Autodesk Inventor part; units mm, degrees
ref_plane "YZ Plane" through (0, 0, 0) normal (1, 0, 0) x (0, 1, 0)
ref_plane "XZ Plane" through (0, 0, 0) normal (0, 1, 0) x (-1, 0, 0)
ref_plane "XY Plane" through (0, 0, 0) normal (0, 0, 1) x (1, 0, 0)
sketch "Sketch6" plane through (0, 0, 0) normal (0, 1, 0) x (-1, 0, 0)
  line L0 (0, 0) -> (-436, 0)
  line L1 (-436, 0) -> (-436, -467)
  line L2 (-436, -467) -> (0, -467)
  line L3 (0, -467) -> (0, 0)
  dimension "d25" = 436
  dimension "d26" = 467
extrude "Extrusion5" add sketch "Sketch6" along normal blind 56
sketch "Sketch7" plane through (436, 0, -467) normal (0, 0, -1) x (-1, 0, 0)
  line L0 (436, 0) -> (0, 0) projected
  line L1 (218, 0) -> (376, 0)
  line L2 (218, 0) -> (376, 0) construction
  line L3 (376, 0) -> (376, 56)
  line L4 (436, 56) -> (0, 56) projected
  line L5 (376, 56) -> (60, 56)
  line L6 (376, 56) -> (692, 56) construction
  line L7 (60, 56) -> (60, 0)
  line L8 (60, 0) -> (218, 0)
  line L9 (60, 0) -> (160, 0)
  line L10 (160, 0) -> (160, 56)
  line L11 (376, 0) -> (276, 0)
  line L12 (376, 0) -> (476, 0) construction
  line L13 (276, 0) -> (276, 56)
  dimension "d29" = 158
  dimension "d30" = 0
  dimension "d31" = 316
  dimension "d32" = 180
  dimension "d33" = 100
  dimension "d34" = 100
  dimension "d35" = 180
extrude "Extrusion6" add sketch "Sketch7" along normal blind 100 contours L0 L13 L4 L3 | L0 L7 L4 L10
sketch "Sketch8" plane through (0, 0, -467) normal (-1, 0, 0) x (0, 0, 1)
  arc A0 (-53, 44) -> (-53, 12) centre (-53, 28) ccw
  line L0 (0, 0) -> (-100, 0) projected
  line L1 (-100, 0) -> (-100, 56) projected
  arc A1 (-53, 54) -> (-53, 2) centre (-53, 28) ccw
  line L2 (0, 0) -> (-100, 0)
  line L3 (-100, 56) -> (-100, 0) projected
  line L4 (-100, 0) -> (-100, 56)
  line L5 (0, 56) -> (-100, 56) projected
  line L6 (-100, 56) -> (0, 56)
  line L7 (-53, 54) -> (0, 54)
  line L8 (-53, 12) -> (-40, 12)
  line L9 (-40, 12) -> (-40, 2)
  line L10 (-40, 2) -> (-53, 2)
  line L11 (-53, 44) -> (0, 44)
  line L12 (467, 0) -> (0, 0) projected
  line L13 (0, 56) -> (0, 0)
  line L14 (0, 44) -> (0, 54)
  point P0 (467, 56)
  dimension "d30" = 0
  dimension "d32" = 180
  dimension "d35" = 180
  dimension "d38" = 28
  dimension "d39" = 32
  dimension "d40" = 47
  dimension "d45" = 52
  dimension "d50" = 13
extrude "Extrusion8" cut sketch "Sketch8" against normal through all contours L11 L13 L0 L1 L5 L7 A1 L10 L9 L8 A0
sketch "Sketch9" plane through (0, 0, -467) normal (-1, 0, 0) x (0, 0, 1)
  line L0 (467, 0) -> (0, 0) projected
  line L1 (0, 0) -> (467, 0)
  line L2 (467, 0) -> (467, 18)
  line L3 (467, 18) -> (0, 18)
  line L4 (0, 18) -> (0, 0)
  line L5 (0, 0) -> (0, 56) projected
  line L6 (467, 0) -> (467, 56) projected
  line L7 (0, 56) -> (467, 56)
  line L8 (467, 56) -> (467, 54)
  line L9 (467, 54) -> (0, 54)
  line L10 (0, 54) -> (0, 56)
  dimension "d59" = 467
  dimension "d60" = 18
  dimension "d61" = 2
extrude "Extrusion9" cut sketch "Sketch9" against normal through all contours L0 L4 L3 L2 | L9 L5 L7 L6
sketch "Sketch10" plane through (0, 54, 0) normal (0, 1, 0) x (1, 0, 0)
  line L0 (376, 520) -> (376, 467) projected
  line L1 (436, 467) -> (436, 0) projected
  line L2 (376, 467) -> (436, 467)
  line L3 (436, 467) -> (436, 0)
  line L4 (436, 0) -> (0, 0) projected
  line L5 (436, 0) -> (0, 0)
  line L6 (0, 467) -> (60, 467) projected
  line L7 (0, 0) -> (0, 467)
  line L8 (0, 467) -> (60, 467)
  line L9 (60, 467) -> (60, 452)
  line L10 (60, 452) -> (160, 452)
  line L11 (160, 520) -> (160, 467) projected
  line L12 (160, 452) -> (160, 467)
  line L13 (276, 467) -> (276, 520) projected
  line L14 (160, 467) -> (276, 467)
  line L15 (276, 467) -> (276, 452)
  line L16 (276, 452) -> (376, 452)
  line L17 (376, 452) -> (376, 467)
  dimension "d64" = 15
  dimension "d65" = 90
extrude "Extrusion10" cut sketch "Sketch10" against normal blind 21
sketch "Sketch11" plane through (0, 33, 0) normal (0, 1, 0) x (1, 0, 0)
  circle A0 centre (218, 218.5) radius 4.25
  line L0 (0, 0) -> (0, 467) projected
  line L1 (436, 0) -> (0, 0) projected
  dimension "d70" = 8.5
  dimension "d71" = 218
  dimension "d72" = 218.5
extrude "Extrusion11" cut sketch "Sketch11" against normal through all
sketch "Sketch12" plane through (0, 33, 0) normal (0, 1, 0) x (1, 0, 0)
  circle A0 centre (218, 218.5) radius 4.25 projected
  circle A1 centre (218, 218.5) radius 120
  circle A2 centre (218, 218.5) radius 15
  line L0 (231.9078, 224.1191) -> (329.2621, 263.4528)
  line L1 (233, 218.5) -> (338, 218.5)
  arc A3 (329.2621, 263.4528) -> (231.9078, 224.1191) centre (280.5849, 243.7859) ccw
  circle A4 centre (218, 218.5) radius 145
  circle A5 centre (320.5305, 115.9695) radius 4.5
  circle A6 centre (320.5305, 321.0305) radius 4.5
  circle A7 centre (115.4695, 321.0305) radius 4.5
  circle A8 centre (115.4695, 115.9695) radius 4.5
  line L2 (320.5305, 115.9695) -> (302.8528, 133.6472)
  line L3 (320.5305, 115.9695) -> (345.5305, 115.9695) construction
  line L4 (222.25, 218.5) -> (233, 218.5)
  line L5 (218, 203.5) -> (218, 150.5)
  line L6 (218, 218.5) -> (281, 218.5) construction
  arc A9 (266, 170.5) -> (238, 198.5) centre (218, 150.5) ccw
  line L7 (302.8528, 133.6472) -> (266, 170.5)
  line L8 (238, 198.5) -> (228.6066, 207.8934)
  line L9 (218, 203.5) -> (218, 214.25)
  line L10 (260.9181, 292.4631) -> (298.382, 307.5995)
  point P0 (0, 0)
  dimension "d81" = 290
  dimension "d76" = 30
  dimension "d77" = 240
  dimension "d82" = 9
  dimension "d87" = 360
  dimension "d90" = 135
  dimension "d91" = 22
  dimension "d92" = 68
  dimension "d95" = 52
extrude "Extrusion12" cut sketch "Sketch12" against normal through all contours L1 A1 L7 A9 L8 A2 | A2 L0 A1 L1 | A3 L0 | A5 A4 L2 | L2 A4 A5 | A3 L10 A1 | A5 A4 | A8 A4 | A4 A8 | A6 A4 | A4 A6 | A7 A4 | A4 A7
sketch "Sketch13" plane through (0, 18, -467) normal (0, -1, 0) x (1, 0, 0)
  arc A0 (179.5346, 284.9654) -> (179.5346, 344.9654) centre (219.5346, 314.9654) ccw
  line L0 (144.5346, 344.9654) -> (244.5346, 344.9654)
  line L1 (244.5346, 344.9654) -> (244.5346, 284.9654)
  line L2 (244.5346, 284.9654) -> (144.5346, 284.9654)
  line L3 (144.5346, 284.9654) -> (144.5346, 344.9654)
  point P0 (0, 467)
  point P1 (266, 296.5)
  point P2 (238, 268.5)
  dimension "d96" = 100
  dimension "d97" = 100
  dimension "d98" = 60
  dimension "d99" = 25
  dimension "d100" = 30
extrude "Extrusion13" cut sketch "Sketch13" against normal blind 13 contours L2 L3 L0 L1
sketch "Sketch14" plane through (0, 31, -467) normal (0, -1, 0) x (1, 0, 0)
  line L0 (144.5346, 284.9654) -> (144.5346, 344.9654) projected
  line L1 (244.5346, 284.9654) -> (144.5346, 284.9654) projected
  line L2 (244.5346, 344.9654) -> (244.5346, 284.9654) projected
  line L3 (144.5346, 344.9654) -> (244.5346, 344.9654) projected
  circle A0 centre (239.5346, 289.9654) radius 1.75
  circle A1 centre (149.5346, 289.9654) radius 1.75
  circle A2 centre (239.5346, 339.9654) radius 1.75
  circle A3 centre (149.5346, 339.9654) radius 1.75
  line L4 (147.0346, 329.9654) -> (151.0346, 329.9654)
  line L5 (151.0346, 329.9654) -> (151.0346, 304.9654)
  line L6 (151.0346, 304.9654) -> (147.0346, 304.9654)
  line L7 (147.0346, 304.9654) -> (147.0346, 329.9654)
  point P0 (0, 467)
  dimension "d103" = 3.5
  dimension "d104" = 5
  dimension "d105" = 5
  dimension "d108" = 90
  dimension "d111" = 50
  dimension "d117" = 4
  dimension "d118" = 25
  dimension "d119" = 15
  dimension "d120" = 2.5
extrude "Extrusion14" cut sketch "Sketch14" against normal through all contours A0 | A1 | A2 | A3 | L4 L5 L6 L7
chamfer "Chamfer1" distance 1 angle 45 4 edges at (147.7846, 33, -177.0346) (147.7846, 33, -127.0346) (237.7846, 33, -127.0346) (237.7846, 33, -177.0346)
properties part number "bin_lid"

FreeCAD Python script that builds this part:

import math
import FreeCAD as App
import Part
import Sketcher
from FreeCAD import Vector
Q = App.Units.Quantity


def edges_at(feature, points):
    """Names of the edges that pass closest to the given points."""
    edges = feature.Shape.Edges
    near = lambda p: min(range(len(edges)), key=lambda i: edges[i].distToShape(Part.Vertex(*p))[0])
    return sorted({f"Edge{near(p) + 1}" for p in points})


def add_polygon(sketch, points):
    """Adds a closed chain of lines whose ends are joined by coincident constraints."""
    first, n = sketch.GeometryCount, len(points)
    for a, b in zip(points, points[1:] + points[:1]):
        sketch.addGeometry(Part.LineSegment(App.Vector(*a, 0), App.Vector(*b, 0)), False)
    for i in range(n):
        sketch.addConstraint(Sketcher.Constraint("Coincident", first + i, 2, first + (i + 1) % n, 1))

doc = App.newDocument("Part")
body = doc.addObject("PartDesign::Body", "Body")

sketch1 = body.newObject("Sketcher::SketchObject", "Sketch")
sketch1.AttachmentSupport = (doc.getObject("XZ_Plane"), [""])
sketch1.MapMode = "FlatFace"
add_polygon(sketch1, [(0, -467), (0, 0), (436, 0), (436, -467)])
sketch1.addConstraint(Sketcher.Constraint("Vertical", 0))
sketch1.addConstraint(Sketcher.Constraint("Horizontal", 1))
sketch1.addConstraint(Sketcher.Constraint("Vertical", 2))
sketch1.addConstraint(Sketcher.Constraint("Horizontal", 3))
sketch1.addConstraint(Sketcher.Constraint("Coincident", 0, 2, -1, 1))
sketch1.addConstraint(Sketcher.Constraint("DistanceX", 1, 1, 1, 2, Q("436 mm")))
sketch1.addConstraint(Sketcher.Constraint("DistanceY", 0, 1, 0, 2, Q("467 mm")))
pad1 = body.newObject("PartDesign::Pad", "Pad")
pad1.Profile = sketch1
pad1.Length = 56
pad1.Reversed = True

sketch2 = body.newObject("Sketcher::SketchObject", "Sketch001")
sketch2.AttachmentSupport = (doc.getObject("XY_Plane"), [""])
sketch2.MapMode = "FlatFace"
sketch2.AttachmentOffset = App.Placement(Vector(0, 0, -467), App.Rotation())
add_polygon(sketch2, [(160, 0), (60, 0), (60, 56), (160, 56)])
add_polygon(sketch2, [(376, 0), (276, 0), (276, 56), (376, 56)])
sketch2.addConstraint(Sketcher.Constraint("Horizontal", 0))
sketch2.addConstraint(Sketcher.Constraint("Vertical", 1))
sketch2.addConstraint(Sketcher.Constraint("Horizontal", 2))
sketch2.addConstraint(Sketcher.Constraint("Vertical", 3))
sketch2.addConstraint(Sketcher.Constraint("Horizontal", 4))
sketch2.addConstraint(Sketcher.Constraint("Vertical", 5))
sketch2.addConstraint(Sketcher.Constraint("Horizontal", 6))
sketch2.addConstraint(Sketcher.Constraint("Vertical", 7))
sketch2.addConstraint(Sketcher.Constraint("PointOnObject", 0, 2, -1))
sketch2.addConstraint(Sketcher.Constraint("PointOnObject", 4, 2, -1))
sketch2.addConstraint(Sketcher.Constraint("Horizontal", 2, 2, 5, 2))
sketch2.addConstraint(Sketcher.Constraint("Equal", 2, 4))
sketch2.addConstraint(Sketcher.Constraint("DistanceX", 0, 2, 0, 1, Q("100 mm")))
sketch2.addConstraint(Sketcher.Constraint("DistanceX", 1, 2, 6, 2, Q("316 mm")))
sketch2.addConstraint(Sketcher.Constraint("DistanceY", 1, 1, 1, 2, Q("56 mm")))
sketch2.addConstraint(Sketcher.Constraint("DistanceX", -1, 1, 0, 2, Q("60 mm")))
pad2 = body.newObject("PartDesign::Pad", "Pad001")
pad2.Profile = sketch2
pad2.Length = 100
pad2.Reversed = True

sketch3 = body.newObject("Sketcher::SketchObject", "Sketch002")
sketch3.AttachmentSupport = (doc.getObject("YZ_Plane"), [""])
sketch3.MapMode = "FlatFace"
sketch3.addGeometry(Part.LineSegment(Vector(44, -467, 0), Vector(44, -520, 0)), False)
sketch3.addGeometry(Part.ArcOfCircle(Part.Circle(Vector(28, -520, 0), Vector(0, 0, 1), 16), math.radians(180), math.radians(360)), False)
sketch3.addGeometry(Part.LineSegment(Vector(12, -520, 0), Vector(12, -507, 0)), False)
sketch3.addGeometry(Part.LineSegment(Vector(12, -507, 0), Vector(2, -507, 0)), False)
sketch3.addGeometry(Part.LineSegment(Vector(2, -507, 0), Vector(2, -520, 0)), False)
sketch3.addGeometry(Part.ArcOfCircle(Part.Circle(Vector(28, -520, 0), Vector(0, 0, 1), 26), math.radians(180), math.radians(360)), False)
sketch3.addGeometry(Part.LineSegment(Vector(54, -520, 0), Vector(54, -467, 0)), False)
sketch3.addGeometry(Part.LineSegment(Vector(54, -467, 0), Vector(56, -467, 0)), False)
sketch3.addGeometry(Part.LineSegment(Vector(56, -467, 0), Vector(56, -567, 0)), False)
sketch3.addGeometry(Part.LineSegment(Vector(56, -567, 0), Vector(0, -567, 0)), False)
sketch3.addGeometry(Part.LineSegment(Vector(0, -567, 0), Vector(0, -467, 0)), False)
sketch3.addGeometry(Part.LineSegment(Vector(0, -467, 0), Vector(44, -467, 0)), False)
sketch3.addConstraint(Sketcher.Constraint("Tangent", 0, 2, 1, 2))
sketch3.addConstraint(Sketcher.Constraint("Tangent", 1, 1, 2, 1))
sketch3.addConstraint(Sketcher.Constraint("Coincident", 2, 2, 3, 1))
sketch3.addConstraint(Sketcher.Constraint("Coincident", 3, 2, 4, 1))
sketch3.addConstraint(Sketcher.Constraint("Tangent", 4, 2, 5, 1))
sketch3.addConstraint(Sketcher.Constraint("Tangent", 5, 2, 6, 1))
sketch3.addConstraint(Sketcher.Constraint("Coincident", 6, 2, 7, 1))
sketch3.addConstraint(Sketcher.Constraint("Coincident", 7, 2, 8, 1))
sketch3.addConstraint(Sketcher.Constraint("Coincident", 8, 2, 9, 1))
sketch3.addConstraint(Sketcher.Constraint("Coincident", 9, 2, 10, 1))
sketch3.addConstraint(Sketcher.Constraint("Coincident", 10, 2, 11, 1))
sketch3.addConstraint(Sketcher.Constraint("Coincident", 11, 2, 0, 1))
sketch3.addConstraint(Sketcher.Constraint("Vertical", 0))
sketch3.addConstraint(Sketcher.Constraint("Vertical", 2))
sketch3.addConstraint(Sketcher.Constraint("Horizontal", 3))
sketch3.addConstraint(Sketcher.Constraint("Vertical", 4))
sketch3.addConstraint(Sketcher.Constraint("Vertical", 6))
sketch3.addConstraint(Sketcher.Constraint("Horizontal", 7))
sketch3.addConstraint(Sketcher.Constraint("Vertical", 8))
sketch3.addConstraint(Sketcher.Constraint("Horizontal", 9))
sketch3.addConstraint(Sketcher.Constraint("Vertical", 10))
sketch3.addConstraint(Sketcher.Constraint("Horizontal", 11))
sketch3.addConstraint(Sketcher.Constraint("Coincident", 5, 3, 1, 3))
sketch3.addConstraint(Sketcher.Constraint("PointOnObject", 9, 2, -2))
sketch3.addConstraint(Sketcher.Constraint("Horizontal", 7, 2, 10, 2))
sketch3.addConstraint(Sketcher.Constraint("Radius", 1, Q("16 mm")))
sketch3.addConstraint(Sketcher.Constraint("Radius", 5, Q("26 mm")))
sketch3.addConstraint(Sketcher.Constraint("DistanceY", 2, 1, 2, 2, Q("13 mm")))
sketch3.addConstraint(Sketcher.Constraint("DistanceX", -1, 1, 1, 3, Q("28 mm")))
sketch3.addConstraint(Sketcher.Constraint("DistanceX", 1, 3, 7, 2, Q("28 mm")))
sketch3.addConstraint(Sketcher.Constraint("DistanceY", 8, 2, 5, 2, Q("47 mm")))
sketch3.addConstraint(Sketcher.Constraint("DistanceY", 0, 2, 0, 1, Q("53 mm")))
sketch3.addConstraint(Sketcher.Constraint("DistanceY", 1, 3, -1, 1, Q("520 mm")))
pocket1 = body.newObject("PartDesign::Pocket", "Pocket")
pocket1.Profile = sketch3
pocket1.Type = "ThroughAll"
pocket1.Reversed = True

sketch4 = body.newObject("Sketcher::SketchObject", "Sketch003")
sketch4.AttachmentSupport = (doc.getObject("YZ_Plane"), [""])
sketch4.MapMode = "FlatFace"
add_polygon(sketch4, [(0, -467), (0, 0), (18, 0), (18, -467)])
add_polygon(sketch4, [(54, -467), (54, 0), (56, 0), (56, -467)])
sketch4.addConstraint(Sketcher.Constraint("Vertical", 0))
sketch4.addConstraint(Sketcher.Constraint("Horizontal", 1))
sketch4.addConstraint(Sketcher.Constraint("Vertical", 2))
sketch4.addConstraint(Sketcher.Constraint("Horizontal", 3))
sketch4.addConstraint(Sketcher.Constraint("Vertical", 4))
sketch4.addConstraint(Sketcher.Constraint("Horizontal", 5))
sketch4.addConstraint(Sketcher.Constraint("Vertical", 6))
sketch4.addConstraint(Sketcher.Constraint("Horizontal", 7))
sketch4.addConstraint(Sketcher.Constraint("Coincident", 0, 2, -1, 1))
sketch4.addConstraint(Sketcher.Constraint("PointOnObject", 4, 2, -1))
sketch4.addConstraint(Sketcher.Constraint("Horizontal", 3, 2, 6, 2))
sketch4.addConstraint(Sketcher.Constraint("DistanceX", 1, 1, 1, 2, Q("18 mm")))
sketch4.addConstraint(Sketcher.Constraint("DistanceX", 5, 1, 5, 2, Q("2 mm")))
sketch4.addConstraint(Sketcher.Constraint("DistanceY", 0, 1, 0, 2, Q("467 mm")))
sketch4.addConstraint(Sketcher.Constraint("DistanceX", -1, 1, 4, 2, Q("54 mm")))
pocket2 = body.newObject("PartDesign::Pocket", "Pocket001")
pocket2.Profile = sketch4
pocket2.Type = "ThroughAll"
pocket2.Reversed = True

sketch5 = body.newObject("Sketcher::SketchObject", "Sketch004")
sketch5.AttachmentSupport = (doc.getObject("XZ_Plane"), [""])
sketch5.MapMode = "FlatFace"
sketch5.AttachmentOffset = App.Placement(Vector(0, 0, -54), App.Rotation())
add_polygon(sketch5, [(436, 0), (436, -467), (376, -467), (376, -452), (276, -452), (276, -467), (160, -467), (160, -452), (60, -452), (60, -467), (0, -467), (0, 0)])
sketch5.addConstraint(Sketcher.Constraint("Vertical", 0))
sketch5.addConstraint(Sketcher.Constraint("Horizontal", 1))
sketch5.addConstraint(Sketcher.Constraint("Vertical", 2))
sketch5.addConstraint(Sketcher.Constraint("Horizontal", 3))
sketch5.addConstraint(Sketcher.Constraint("Vertical", 4))
sketch5.addConstraint(Sketcher.Constraint("Horizontal", 5))
sketch5.addConstraint(Sketcher.Constraint("Vertical", 6))
sketch5.addConstraint(Sketcher.Constraint("Horizontal", 7))
sketch5.addConstraint(Sketcher.Constraint("Vertical", 8))
sketch5.addConstraint(Sketcher.Constraint("Horizontal", 9))
sketch5.addConstraint(Sketcher.Constraint("Vertical", 10))
sketch5.addConstraint(Sketcher.Constraint("Horizontal", 11))
sketch5.addConstraint(Sketcher.Constraint("Coincident", 10, 2, -1, 1))
sketch5.addConstraint(Sketcher.Constraint("Horizontal", 1, 2, 4, 2))
sketch5.addConstraint(Sketcher.Constraint("Horizontal", 3, 2, 6, 2))
sketch5.addConstraint(Sketcher.Constraint("Horizontal", 5, 2, 8, 2))
sketch5.addConstraint(Sketcher.Constraint("Equal", 3, 7))
sketch5.addConstraint(Sketcher.Constraint("Equal", 1, 9))
sketch5.addConstraint(Sketcher.Constraint("DistanceY", 2, 1, 2, 2, Q("15 mm")))
sketch5.addConstraint(Sketcher.Constraint("DistanceX", 1, 2, 1, 1, Q("60 mm")))
sketch5.addConstraint(Sketcher.Constraint("DistanceX", 3, 2, 3, 1, Q("100 mm")))
sketch5.addConstraint(Sketcher.Constraint("DistanceX", 5, 2, 5, 1, Q("116 mm")))
sketch5.addConstraint(Sketcher.Constraint("DistanceY", 0, 2, 0, 1, Q("467 mm")))
pocket3 = body.newObject("PartDesign::Pocket", "Pocket002")
pocket3.Profile = sketch5
pocket3.Length = 21
pocket3.Reversed = True

sketch6 = body.newObject("Sketcher::SketchObject", "Sketch005")
sketch6.AttachmentSupport = (doc.getObject("XZ_Plane"), [""])
sketch6.MapMode = "FlatFace"
sketch6.AttachmentOffset = App.Placement(Vector(0, 0, -33), App.Rotation())
sketch6.addGeometry(Part.Circle(Vector(218, -218.5, 0), Vector(0, 0, 1), 4.2), False)
sketch6.addConstraint(Sketcher.Constraint("Diameter", 0, Q("8.5 mm")))
sketch6.addConstraint(Sketcher.Constraint("DistanceX", -1, 1, 0, 3, Q("218 mm")))
sketch6.addConstraint(Sketcher.Constraint("DistanceY", 0, 3, -1, 1, Q("218.5 mm")))
pocket4 = body.newObject("PartDesign::Pocket", "Pocket003")
pocket4.Profile = sketch6
pocket4.Type = "ThroughAll"
pocket4.Reversed = True

sketch7 = body.newObject("Sketcher::SketchObject", "Sketch006")
sketch7.AttachmentSupport = (doc.getObject("XZ_Plane"), [""])
sketch7.MapMode = "FlatFace"
sketch7.AttachmentOffset = App.Placement(Vector(0, 0, -33), App.Rotation())
sketch7.addGeometry(Part.ArcOfCircle(Part.Circle(Vector(218, -218.5, 0), Vector(0, 0, 1), 120), math.radians(-48), math.radians(45)), False)
sketch7.addGeometry(Part.LineSegment(Vector(298.4, -307.6, 0), Vector(260.9, -292.5, 0)), False)
sketch7.addGeometry(Part.ArcOfCircle(Part.Circle(Vector(280.6, -243.8, 0), Vector(0, 0, 1), 52.5), math.radians(158), math.radians(248)), False)
sketch7.addGeometry(Part.ArcOfCircle(Part.Circle(Vector(218, -218.5, 0), Vector(0, 0, 1), 15), math.radians(-22), math.radians(45)), False)
sketch7.addGeometry(Part.LineSegment(Vector(228.6, -207.9, 0), Vector(238, -198.5, 0)), False)
sketch7.addGeometry(Part.ArcOfCircle(Part.Circle(Vector(218, -150.5, 0), Vector(0, 0, 1), 52), math.radians(-67), math.radians(-23)), False)
sketch7.addGeometry(Part.LineSegment(Vector(266, -170.5, 0), Vector(302.9, -133.6, 0)), False)
sketch7.addGeometry(Part.Circle(Vector(320.5, -116, 0), Vector(0, 0, 1), 4.5), False)
sketch7.addGeometry(Part.Circle(Vector(115.5, -116, 0), Vector(0, 0, 1), 4.5), False)
sketch7.addGeometry(Part.Circle(Vector(320.5, -321, 0), Vector(0, 0, 1), 4.5), False)
sketch7.addGeometry(Part.Circle(Vector(115.5, -321, 0), Vector(0, 0, 1), 4.5), False)
sketch7.addConstraint(Sketcher.Constraint("Coincident", 0, 1, 1, 1))
sketch7.addConstraint(Sketcher.Constraint("Tangent", 1, 2, 2, 2))
sketch7.addConstraint(Sketcher.Constraint("Tangent", 2, 1, 3, 1))
sketch7.addConstraint(Sketcher.Constraint("Coincident", 3, 2, 4, 1))
sketch7.addConstraint(Sketcher.Constraint("Coincident", 4, 2, 5, 1))
sketch7.addConstraint(Sketcher.Constraint("Coincident", 5, 2, 6, 1))
sketch7.addConstraint(Sketcher.Constraint("Coincident", 6, 2, 0, 2))
sketch7.addConstraint(Sketcher.Constraint("Coincident", 3, 3, 0, 3))
sketch7.addConstraint(Sketcher.Constraint("Equal", 7, 8))
sketch7.addConstraint(Sketcher.Constraint("Equal", 8, 9))
sketch7.addConstraint(Sketcher.Constraint("Equal", 9, 10))
sketch7.addConstraint(Sketcher.Constraint("Parallel", 4, 6))
sketch7.addConstraint(Sketcher.Constraint("Horizontal", 7, 3, 8, 3))
sketch7.addConstraint(Sketcher.Constraint("Horizontal", 9, 3, 10, 3))
sketch7.addConstraint(Sketcher.Constraint("Vertical", 3, 3, 5, 3))
sketch7.addConstraint(Sketcher.Constraint("Vertical", 7, 3, 9, 3))
sketch7.addConstraint(Sketcher.Constraint("Vertical", 8, 3, 10, 3))
sketch7.addConstraint(Sketcher.Constraint("Diameter", 7, Q("9 mm")))
sketch7.addConstraint(Sketcher.Constraint("Radius", 0, Q("120 mm")))
sketch7.addConstraint(Sketcher.Constraint("Radius", 3, Q("15 mm")))
sketch7.addConstraint(Sketcher.Constraint("Radius", 5, Q("52 mm")))
sketch7.addConstraint(Sketcher.Constraint("DistanceY", 0, 3, 5, 3, Q("68 mm")))
sketch7.addConstraint(Sketcher.Constraint("Radius", 2, Q("52.5 mm")))
sketch7.addConstraint(Sketcher.Constraint("Angle", 1, Q("158 deg")))
sketch7.addConstraint(Sketcher.Constraint("Angle", 4, Q("45 deg")))
sketch7.addConstraint(Sketcher.Constraint("DistanceX", -1, 1, 0, 3, Q("218 mm")))
sketch7.addConstraint(Sketcher.Constraint("DistanceX", -1, 1, 4, 2, Q("238 mm")))
sketch7.addConstraint(Sketcher.Constraint("DistanceX", -1, 1, 5, 2, Q("266 mm")))
sketch7.addConstraint(Sketcher.Constraint("DistanceY", 0, 3, -1, 1, Q("218.5 mm")))
sketch7.addConstraint(Sketcher.Constraint("Distance", 1, Q("40.406 mm")))
sketch7.addConstraint(Sketcher.Constraint("DistanceX", 8, 3, 7, 3, Q("205.061 mm")))
sketch7.addConstraint(Sketcher.Constraint("DistanceY", 9, 3, 7, 3, Q("205.061 mm")))
sketch7.addConstraint(Sketcher.Constraint("DistanceY", 9, 3, 0, 1, Q("13.431 mm")))
sketch7.addConstraint(Sketcher.Constraint("DistanceX", -1, 1, 7, 3, Q("320.5305 mm")))
pocket5 = body.newObject("PartDesign::Pocket", "Pocket004")
pocket5.Profile = sketch7
pocket5.Type = "ThroughAll"
pocket5.Reversed = True

sketch8 = body.newObject("Sketcher::SketchObject", "Sketch007")
sketch8.AttachmentSupport = (doc.getObject("XZ_Plane"), [""])
sketch8.MapMode = "FlatFace"
sketch8.AttachmentOffset = App.Placement(Vector(0, 0, -18), App.Rotation())
add_polygon(sketch8, [(145, -182), (245, -182), (245, -122), (145, -122)])
sketch8.addConstraint(Sketcher.Constraint("Horizontal", 0))
sketch8.addConstraint(Sketcher.Constraint("Vertical", 1))
sketch8.addConstraint(Sketcher.Constraint("Horizontal", 2))
sketch8.addConstraint(Sketcher.Constraint("Vertical", 3))
sketch8.addConstraint(Sketcher.Constraint("DistanceX", 0, 1, 0, 2, Q("100 mm")))
sketch8.addConstraint(Sketcher.Constraint("DistanceY", 1, 1, 1, 2, Q("60 mm")))
sketch8.addConstraint(Sketcher.Constraint("DistanceX", -1, 1, 0, 2, Q("244.5346 mm")))
sketch8.addConstraint(Sketcher.Constraint("DistanceY", 0, 2, -1, 1, Q("182.0346 mm")))
pocket6 = body.newObject("PartDesign::Pocket", "Pocket005")
pocket6.Profile = sketch8
pocket6.Length = 13

sketch9 = body.newObject("Sketcher::SketchObject", "Sketch008")
sketch9.AttachmentSupport = (doc.getObject("XZ_Plane"), [""])
sketch9.MapMode = "FlatFace"
sketch9.AttachmentOffset = App.Placement(Vector(0, 0, -31), App.Rotation())
sketch9.addGeometry(Part.Circle(Vector(239.5, -177, 0), Vector(0, 0, 1), 1.8), False)
sketch9.addGeometry(Part.Circle(Vector(149.5, -177, 0), Vector(0, 0, 1), 1.8), False)
sketch9.addGeometry(Part.Circle(Vector(239.5, -127, 0), Vector(0, 0, 1), 1.8), False)
sketch9.addGeometry(Part.Circle(Vector(149.5, -127, 0), Vector(0, 0, 1), 1.8), False)
add_polygon(sketch9, [(151, -137), (147, -137), (147, -162), (151, -162)])
sketch9.addConstraint(Sketcher.Constraint("Horizontal", 4))
sketch9.addConstraint(Sketcher.Constraint("Vertical", 5))
sketch9.addConstraint(Sketcher.Constraint("Horizontal", 6))
sketch9.addConstraint(Sketcher.Constraint("Vertical", 7))
sketch9.addConstraint(Sketcher.Constraint("Equal", 0, 1))
sketch9.addConstraint(Sketcher.Constraint("Equal", 1, 2))
sketch9.addConstraint(Sketcher.Constraint("Equal", 2, 3))
sketch9.addConstraint(Sketcher.Constraint("Horizontal", 0, 3, 1, 3))
sketch9.addConstraint(Sketcher.Constraint("Horizontal", 2, 3, 3, 3))
sketch9.addConstraint(Sketcher.Constraint("Vertical", 0, 3, 2, 3))
sketch9.addConstraint(Sketcher.Constraint("Vertical", 1, 3, 3, 3))
sketch9.addConstraint(Sketcher.Constraint("Diameter", 0, Q("3.5 mm")))
sketch9.addConstraint(Sketcher.Constraint("DistanceX", 4, 2, 4, 1, Q("4 mm")))
sketch9.addConstraint(Sketcher.Constraint("DistanceY", 5, 2, 5, 1, Q("25 mm")))
sketch9.addConstraint(Sketcher.Constraint("DistanceX", 1, 3, 0, 3, Q("90 mm")))
sketch9.addConstraint(Sketcher.Constraint("DistanceY", 0, 3, 2, 3, Q("50 mm")))
sketch9.addConstraint(Sketcher.Constraint("DistanceY", 1, 3, 5, 2, Q("15 mm")))
sketch9.addConstraint(Sketcher.Constraint("DistanceX", 4, 2, 3, 3, Q("2.5 mm")))
sketch9.addConstraint(Sketcher.Constraint("DistanceX", -1, 1, 0, 3, Q("239.5346 mm")))
sketch9.addConstraint(Sketcher.Constraint("DistanceY", 0, 3, -1, 1, Q("177.0346 mm")))
pocket7 = body.newObject("PartDesign::Pocket", "Pocket006")
pocket7.Profile = sketch9
pocket7.Type = "ThroughAll"
doc.recompute()

chamfer = body.newObject("PartDesign::Chamfer", "Chamfer")
chamfer.Base = (pocket7, edges_at(pocket7, [
    (147.785, 33, -177.035),
    (147.785, 33, -127.035),
    (237.785, 33, -127.035),
    (237.785, 33, -177.035),
]))
chamfer.Size = 1

doc.recompute()
